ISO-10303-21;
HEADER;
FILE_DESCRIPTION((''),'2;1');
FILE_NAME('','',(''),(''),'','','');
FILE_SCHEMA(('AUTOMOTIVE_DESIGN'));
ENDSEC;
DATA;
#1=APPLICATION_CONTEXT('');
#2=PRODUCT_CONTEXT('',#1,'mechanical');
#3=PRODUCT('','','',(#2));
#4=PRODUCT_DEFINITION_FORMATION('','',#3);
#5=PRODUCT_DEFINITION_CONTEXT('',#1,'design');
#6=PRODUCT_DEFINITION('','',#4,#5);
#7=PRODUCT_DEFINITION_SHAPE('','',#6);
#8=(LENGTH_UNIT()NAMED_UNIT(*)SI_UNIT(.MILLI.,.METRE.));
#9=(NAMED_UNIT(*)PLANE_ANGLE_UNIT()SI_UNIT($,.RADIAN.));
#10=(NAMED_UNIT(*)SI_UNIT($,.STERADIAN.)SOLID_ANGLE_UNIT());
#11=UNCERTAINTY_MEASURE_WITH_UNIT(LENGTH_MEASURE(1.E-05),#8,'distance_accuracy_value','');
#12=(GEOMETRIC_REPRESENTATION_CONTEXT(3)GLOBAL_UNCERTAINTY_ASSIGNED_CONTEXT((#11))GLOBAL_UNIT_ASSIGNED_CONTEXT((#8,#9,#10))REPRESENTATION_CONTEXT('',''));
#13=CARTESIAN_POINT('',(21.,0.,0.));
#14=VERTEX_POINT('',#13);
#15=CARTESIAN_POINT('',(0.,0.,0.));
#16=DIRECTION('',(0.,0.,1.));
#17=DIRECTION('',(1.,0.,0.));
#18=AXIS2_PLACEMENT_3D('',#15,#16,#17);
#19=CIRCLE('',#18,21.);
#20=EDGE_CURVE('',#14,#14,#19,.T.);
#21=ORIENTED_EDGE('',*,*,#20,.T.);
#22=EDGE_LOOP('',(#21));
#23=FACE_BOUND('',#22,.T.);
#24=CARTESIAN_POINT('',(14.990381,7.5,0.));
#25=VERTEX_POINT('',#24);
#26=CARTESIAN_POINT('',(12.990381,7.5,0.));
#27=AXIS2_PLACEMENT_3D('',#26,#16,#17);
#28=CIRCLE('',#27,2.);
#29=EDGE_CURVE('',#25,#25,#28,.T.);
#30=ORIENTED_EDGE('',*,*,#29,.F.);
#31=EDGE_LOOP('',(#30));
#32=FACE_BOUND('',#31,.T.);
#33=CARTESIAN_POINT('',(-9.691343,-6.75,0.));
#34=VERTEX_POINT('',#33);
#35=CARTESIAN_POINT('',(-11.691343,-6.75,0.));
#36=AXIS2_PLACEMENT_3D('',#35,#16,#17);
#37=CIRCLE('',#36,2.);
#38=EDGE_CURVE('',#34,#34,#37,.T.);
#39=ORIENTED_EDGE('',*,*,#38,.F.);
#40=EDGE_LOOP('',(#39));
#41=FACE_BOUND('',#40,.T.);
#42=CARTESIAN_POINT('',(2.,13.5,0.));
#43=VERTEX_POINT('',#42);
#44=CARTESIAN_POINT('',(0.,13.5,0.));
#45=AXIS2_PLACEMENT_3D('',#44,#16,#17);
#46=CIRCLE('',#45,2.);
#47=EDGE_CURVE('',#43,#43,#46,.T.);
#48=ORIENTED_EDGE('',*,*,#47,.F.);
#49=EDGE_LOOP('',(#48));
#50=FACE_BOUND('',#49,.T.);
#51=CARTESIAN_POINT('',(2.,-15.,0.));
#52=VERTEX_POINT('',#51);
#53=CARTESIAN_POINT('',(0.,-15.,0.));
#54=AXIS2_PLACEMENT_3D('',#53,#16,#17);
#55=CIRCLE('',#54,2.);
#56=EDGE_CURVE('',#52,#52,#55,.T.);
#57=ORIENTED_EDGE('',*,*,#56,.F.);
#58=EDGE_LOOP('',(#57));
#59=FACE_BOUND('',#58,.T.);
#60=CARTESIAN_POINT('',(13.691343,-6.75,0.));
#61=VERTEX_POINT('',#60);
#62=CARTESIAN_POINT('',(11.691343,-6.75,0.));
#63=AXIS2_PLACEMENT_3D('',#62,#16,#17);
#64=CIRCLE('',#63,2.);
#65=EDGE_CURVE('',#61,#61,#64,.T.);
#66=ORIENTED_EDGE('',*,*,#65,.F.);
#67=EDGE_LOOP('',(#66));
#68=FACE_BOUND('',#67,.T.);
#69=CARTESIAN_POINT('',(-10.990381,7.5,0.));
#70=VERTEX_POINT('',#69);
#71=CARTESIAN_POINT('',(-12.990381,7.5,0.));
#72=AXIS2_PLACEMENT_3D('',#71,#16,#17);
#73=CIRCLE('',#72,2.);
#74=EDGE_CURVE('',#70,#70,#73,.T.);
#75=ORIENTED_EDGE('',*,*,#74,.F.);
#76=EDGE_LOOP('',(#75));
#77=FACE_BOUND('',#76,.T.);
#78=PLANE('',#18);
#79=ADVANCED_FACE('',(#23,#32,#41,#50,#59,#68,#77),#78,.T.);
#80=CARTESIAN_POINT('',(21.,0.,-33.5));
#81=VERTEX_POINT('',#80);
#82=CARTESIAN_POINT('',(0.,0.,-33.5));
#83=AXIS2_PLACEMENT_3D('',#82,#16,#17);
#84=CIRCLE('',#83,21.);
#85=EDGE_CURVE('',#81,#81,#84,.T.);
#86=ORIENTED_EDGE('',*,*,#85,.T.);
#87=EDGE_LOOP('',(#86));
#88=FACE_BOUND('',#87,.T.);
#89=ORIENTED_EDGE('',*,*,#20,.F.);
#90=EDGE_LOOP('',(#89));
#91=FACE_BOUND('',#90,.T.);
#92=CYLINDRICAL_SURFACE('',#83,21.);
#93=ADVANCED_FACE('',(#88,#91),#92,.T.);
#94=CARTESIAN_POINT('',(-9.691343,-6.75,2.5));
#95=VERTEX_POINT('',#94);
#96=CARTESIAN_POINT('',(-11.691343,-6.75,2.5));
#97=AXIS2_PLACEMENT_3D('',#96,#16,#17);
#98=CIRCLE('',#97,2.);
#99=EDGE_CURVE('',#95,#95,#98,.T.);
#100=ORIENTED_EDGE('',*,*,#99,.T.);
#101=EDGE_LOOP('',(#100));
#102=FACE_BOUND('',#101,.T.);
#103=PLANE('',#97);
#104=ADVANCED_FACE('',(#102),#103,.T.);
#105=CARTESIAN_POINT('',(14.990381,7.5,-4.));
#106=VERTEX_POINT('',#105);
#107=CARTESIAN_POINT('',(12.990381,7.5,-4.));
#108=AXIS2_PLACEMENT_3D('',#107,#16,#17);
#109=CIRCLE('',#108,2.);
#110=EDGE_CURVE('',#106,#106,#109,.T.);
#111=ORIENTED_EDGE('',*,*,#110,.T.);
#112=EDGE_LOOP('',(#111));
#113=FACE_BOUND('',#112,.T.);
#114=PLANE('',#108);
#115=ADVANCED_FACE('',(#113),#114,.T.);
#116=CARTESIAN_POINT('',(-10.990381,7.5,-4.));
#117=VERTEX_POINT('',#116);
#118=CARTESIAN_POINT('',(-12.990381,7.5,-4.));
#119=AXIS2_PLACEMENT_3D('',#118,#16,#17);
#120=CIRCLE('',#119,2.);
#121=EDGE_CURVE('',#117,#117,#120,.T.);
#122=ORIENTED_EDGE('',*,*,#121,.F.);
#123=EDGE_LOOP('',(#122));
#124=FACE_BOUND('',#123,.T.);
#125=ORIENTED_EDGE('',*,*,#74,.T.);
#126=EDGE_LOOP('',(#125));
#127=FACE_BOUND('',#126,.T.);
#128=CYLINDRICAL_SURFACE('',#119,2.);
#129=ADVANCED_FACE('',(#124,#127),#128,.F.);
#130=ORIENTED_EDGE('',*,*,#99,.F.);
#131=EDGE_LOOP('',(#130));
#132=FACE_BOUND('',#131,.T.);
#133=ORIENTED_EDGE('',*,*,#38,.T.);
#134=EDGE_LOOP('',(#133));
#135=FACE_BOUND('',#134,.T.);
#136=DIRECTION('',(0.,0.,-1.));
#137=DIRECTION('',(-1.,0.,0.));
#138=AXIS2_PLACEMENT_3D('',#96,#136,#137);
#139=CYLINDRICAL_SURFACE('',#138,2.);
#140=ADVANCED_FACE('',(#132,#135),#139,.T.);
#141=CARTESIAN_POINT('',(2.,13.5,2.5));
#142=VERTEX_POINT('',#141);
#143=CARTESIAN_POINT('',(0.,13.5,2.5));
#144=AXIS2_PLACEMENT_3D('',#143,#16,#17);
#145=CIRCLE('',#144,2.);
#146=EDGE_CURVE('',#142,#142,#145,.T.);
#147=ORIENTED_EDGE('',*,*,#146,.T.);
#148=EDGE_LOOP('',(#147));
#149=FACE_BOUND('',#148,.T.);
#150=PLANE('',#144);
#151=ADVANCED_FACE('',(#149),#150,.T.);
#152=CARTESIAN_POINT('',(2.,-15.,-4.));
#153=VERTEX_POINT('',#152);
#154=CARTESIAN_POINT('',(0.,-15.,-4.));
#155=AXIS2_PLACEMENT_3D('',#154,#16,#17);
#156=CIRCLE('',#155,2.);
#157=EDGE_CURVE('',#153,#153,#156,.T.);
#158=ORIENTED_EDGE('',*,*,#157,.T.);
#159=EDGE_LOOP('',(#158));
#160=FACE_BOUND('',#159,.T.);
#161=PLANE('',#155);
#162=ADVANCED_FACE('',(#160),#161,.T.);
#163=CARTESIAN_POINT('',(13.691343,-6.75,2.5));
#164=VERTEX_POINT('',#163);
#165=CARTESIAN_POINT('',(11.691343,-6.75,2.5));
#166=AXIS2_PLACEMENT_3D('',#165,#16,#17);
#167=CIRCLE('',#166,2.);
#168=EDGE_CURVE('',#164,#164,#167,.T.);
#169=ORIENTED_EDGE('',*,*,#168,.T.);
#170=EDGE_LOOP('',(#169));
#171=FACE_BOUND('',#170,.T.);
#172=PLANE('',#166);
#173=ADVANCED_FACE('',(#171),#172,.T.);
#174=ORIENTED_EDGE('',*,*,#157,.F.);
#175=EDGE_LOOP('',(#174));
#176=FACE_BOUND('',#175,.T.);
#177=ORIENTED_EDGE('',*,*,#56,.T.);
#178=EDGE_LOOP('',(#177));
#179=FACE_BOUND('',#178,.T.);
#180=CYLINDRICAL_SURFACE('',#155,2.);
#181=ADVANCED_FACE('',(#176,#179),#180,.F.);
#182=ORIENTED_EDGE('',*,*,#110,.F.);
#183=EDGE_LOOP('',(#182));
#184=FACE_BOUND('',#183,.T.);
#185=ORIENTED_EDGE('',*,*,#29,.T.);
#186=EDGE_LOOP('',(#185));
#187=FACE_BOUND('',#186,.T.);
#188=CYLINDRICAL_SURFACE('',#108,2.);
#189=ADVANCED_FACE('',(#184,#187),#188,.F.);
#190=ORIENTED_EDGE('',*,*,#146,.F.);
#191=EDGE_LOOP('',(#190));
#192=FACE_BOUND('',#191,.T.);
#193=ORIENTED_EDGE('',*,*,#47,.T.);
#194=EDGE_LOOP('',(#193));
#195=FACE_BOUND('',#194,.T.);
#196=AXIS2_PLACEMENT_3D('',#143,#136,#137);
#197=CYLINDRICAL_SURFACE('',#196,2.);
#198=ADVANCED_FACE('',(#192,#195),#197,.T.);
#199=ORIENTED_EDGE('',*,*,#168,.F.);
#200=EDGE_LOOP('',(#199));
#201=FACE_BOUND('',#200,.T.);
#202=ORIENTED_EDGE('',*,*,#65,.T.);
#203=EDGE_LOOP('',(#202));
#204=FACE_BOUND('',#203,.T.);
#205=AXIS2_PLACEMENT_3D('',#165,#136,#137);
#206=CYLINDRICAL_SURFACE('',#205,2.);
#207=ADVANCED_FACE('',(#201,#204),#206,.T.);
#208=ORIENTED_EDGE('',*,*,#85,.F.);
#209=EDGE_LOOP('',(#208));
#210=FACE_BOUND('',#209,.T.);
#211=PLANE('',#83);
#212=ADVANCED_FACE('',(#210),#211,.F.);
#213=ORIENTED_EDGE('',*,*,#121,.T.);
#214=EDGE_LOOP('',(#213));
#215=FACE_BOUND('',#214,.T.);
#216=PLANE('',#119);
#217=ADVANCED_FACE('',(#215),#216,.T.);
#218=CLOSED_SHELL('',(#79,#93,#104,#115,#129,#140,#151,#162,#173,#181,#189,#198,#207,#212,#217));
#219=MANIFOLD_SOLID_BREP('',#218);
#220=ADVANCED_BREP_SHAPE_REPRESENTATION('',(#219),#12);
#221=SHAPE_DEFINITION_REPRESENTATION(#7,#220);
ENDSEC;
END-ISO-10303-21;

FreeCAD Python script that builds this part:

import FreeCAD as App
import Part
import Sketcher
Q = App.Units.Quantity

doc = App.newDocument("Part")
params = doc.addObject("Spreadsheet::Sheet", "Params")
for row, (alias, value) in enumerate([
    ("sketch1_diameter", "42 mm"),
    ("pad1_length", "33.5 mm"),
    ("sketch2_diameter", "4 mm"),
    ("pocket1_length", "4 mm"),
    ("sketch3_diameter", "4 mm"),
    ("pad2_length", "2.5 mm"),
], start=1):
    params.set(f"A{row}", alias)
    params.set(f"B{row}", "=" + value)
    params.setAlias(f"B{row}", alias)

body = doc.addObject("PartDesign::Body", "Body")

# Sketch on XY plane
sketch1 = doc.addObject("Sketcher::SketchObject", "Sketch")
body.addObject(sketch1)
sketch1.AttachmentSupport = (doc.XY_Plane, [""])
sketch1.MapMode = "FlatFace"
sketch1.addGeometry(Part.Circle(App.Vector(0, 0, 0), App.Vector(0, 0, 1), 21), False)
sketch1.addConstraint(Sketcher.Constraint("Coincident", 0, 3, -1, 1))
sketch1.addConstraint(Sketcher.Constraint("Diameter", 0, Q("42 mm")))
sketch1.setExpression("Constraints[1]", "Params.sketch1_diameter")
pad1 = doc.addObject("PartDesign::Pad", "Pad")
body.addObject(pad1)
pad1.Profile = sketch1
pad1.setExpression("Length", "Params.pad1_length")
pad1.Reversed = True

# Sketch on XY plane
sketch2 = doc.addObject("Sketcher::SketchObject", "Sketch001")
body.addObject(sketch2)
sketch2.AttachmentSupport = (doc.XY_Plane, [""])
sketch2.MapMode = "FlatFace"
sketch2.addGeometry(Part.Circle(App.Vector(0, -15, 0), App.Vector(0, 0, 1), 2), False)
sketch2.addGeometry(Part.Circle(App.Vector(-12.990381, 7.5, 0), App.Vector(0, 0, 1), 2), False)
sketch2.addGeometry(Part.Circle(App.Vector(12.990381, 7.5, 0), App.Vector(0, 0, 1), 2), False)
sketch2.addConstraint(Sketcher.Constraint("Equal", 0, 1))
sketch2.addConstraint(Sketcher.Constraint("Equal", 1, 2))
sketch2.addConstraint(Sketcher.Constraint("Symmetric", 1, 3, 2, 3, -2))
sketch2.addConstraint(Sketcher.Constraint("PointOnObject", 0, 3, -2))
sketch2.addConstraint(Sketcher.Constraint("Diameter", 0, Q("4 mm")))
sketch2.addConstraint(Sketcher.Constraint("DistanceY", 0, 3, -1, 1, Q("15 mm")))
sketch2.addConstraint(Sketcher.Constraint("DistanceY", -1, 1, 1, 3, Q("7.5 mm")))
sketch2.addConstraint(Sketcher.Constraint("DistanceX", 1, 3, -1, 1, Q("12.990381 mm")))
sketch2.setExpression("Constraints[4]", "Params.sketch2_diameter")
pocket1 = doc.addObject("PartDesign::Pocket", "Pocket")
body.addObject(pocket1)
pocket1.Profile = sketch2
pocket1.setExpression("Length", "Params.pocket1_length")

# Sketch on XY plane
sketch3 = doc.addObject("Sketcher::SketchObject", "Sketch002")
body.addObject(sketch3)
sketch3.AttachmentSupport = (doc.XY_Plane, [""])
sketch3.MapMode = "FlatFace"
sketch3.addGeometry(Part.Circle(App.Vector(0, 13.5, 0), App.Vector(0, 0, 1), 2), False)
sketch3.addGeometry(Part.Circle(App.Vector(11.691343, -6.75, 0), App.Vector(0, 0, 1), 2), False)
sketch3.addGeometry(Part.Circle(App.Vector(-11.691343, -6.75, 0), App.Vector(0, 0, 1), 2), False)
sketch3.addConstraint(Sketcher.Constraint("Equal", 0, 1))
sketch3.addConstraint(Sketcher.Constraint("Equal", 1, 2))
sketch3.addConstraint(Sketcher.Constraint("Symmetric", 1, 3, 2, 3, -2))
sketch3.addConstraint(Sketcher.Constraint("PointOnObject", 0, 3, -2))
sketch3.addConstraint(Sketcher.Constraint("Diameter", 0, Q("4 mm")))
sketch3.addConstraint(Sketcher.Constraint("DistanceY", -1, 1, 0, 3, Q("13.5 mm")))
sketch3.addConstraint(Sketcher.Constraint("DistanceY", 1, 3, -1, 1, Q("6.75 mm")))
sketch3.addConstraint(Sketcher.Constraint("DistanceX", -1, 1, 1, 3, Q("11.691343 mm")))
sketch3.setExpression("Constraints[4]", "Params.sketch3_diameter")
pad2 = doc.addObject("PartDesign::Pad", "Pad001")
body.addObject(pad2)
pad2.Profile = sketch3
pad2.setExpression("Length", "Params.pad2_length")

doc.recompute()
